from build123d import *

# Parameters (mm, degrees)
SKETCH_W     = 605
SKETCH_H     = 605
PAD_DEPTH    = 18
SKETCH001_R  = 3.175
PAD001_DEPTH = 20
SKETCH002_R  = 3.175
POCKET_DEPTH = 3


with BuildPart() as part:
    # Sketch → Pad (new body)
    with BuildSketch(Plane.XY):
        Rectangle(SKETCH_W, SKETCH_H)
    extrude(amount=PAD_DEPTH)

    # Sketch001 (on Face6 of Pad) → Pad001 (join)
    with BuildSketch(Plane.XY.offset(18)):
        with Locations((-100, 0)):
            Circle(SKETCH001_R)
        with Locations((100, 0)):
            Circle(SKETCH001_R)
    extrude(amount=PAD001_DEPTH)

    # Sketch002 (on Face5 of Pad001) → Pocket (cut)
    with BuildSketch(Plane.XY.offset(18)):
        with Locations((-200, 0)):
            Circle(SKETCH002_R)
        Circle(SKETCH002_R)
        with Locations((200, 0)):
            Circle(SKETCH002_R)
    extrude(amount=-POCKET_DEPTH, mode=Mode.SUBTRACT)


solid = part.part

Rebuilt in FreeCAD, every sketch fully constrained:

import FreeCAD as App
import Part
import Sketcher
Q = App.Units.Quantity

doc = App.newDocument("Part")
body = doc.addObject("PartDesign::Body", "Body")

sketch1 = body.newObject("Sketcher::SketchObject", "Sketch")
sketch1.AttachmentSupport = (doc.getObject("XY_Plane"), [""])
sketch1.MapMode = "FlatFace"
sketch1.addGeometry([
    Part.LineSegment(App.Vector(-302, 302, 0), App.Vector(-302, -302, 0)),
    Part.LineSegment(App.Vector(-302, -302, 0), App.Vector(302, -302, 0)),
    Part.LineSegment(App.Vector(302, -302, 0), App.Vector(302, 302, 0)),
    Part.LineSegment(App.Vector(302, 302, 0), App.Vector(-302, 302, 0)),
], False)
sketch1.addConstraint([
    Sketcher.Constraint("Coincident", 0, 2, 1, 1),
    Sketcher.Constraint("Coincident", 1, 2, 2, 1),
    Sketcher.Constraint("Coincident", 2, 2, 3, 1),
    Sketcher.Constraint("Coincident", 3, 2, 0, 1),
    Sketcher.Constraint("Vertical", 0),
    Sketcher.Constraint("Horizontal", 1),
    Sketcher.Constraint("Vertical", 2),
    Sketcher.Constraint("Horizontal", 3),
    Sketcher.Constraint("Symmetric", 0, 2, 2, 2, -1, 1),
    Sketcher.Constraint("Equal", 3, 0),
    Sketcher.Constraint("DistanceX", 1, 1, 1, 2, Q("605 mm")),
])
pad1 = body.newObject("PartDesign::Pad", "Pad")
pad1.Profile = sketch1
pad1.Length = 18

sketch2 = body.newObject("Sketcher::SketchObject", "Sketch001")
sketch2.AttachmentSupport = (doc.getObject("XY_Plane"), [""])
sketch2.MapMode = "FlatFace"
sketch2.AttachmentOffset = App.Placement(App.Vector(0, 0, 18), App.Rotation())
sketch2.addGeometry([
    Part.Circle(App.Vector(-100, 0, 0), App.Vector(0, 0, 1), 3.2),
    Part.Circle(App.Vector(100, 0, 0), App.Vector(0, 0, 1), 3.2),
], False)
sketch2.addConstraint([
    Sketcher.Constraint("Equal", 0, 1),
    Sketcher.Constraint("Symmetric", 0, 3, 1, 3, -1, 1),
    Sketcher.Constraint("PointOnObject", 0, 3, -1),
    Sketcher.Constraint("Diameter", 0, Q("6.35 mm")),
    Sketcher.Constraint("DistanceX", 0, 3, -1, 1, Q("100 mm")),
])
pad2 = body.newObject("PartDesign::Pad", "Pad001")
pad2.Profile = sketch2
pad2.Length = 20

sketch3 = body.newObject("Sketcher::SketchObject", "Sketch002")
sketch3.AttachmentSupport = (doc.getObject("XY_Plane"), [""])
sketch3.MapMode = "FlatFace"
sketch3.AttachmentOffset = App.Placement(App.Vector(0, 0, 18), App.Rotation())
sketch3.addGeometry([
    Part.Circle(App.Vector(-200, 0, 0), App.Vector(0, 0, 1), 3.2),
    Part.Circle(App.Vector(0, 0, 0), App.Vector(0, 0, 1), 3.2),
    Part.Circle(App.Vector(200, 0, 0), App.Vector(0, 0, 1), 3.2),
], False)
sketch3.addConstraint([
    Sketcher.Constraint("Coincident", 1, 3, -1, 1),
    Sketcher.Constraint("Equal", 0, 1),
    Sketcher.Constraint("Equal", 1, 2),
    Sketcher.Constraint("Symmetric", 0, 3, 2, 3, -1, 1),
    Sketcher.Constraint("PointOnObject", 0, 3, -1),
    Sketcher.Constraint("Diameter", 0, Q("6.35 mm")),
    Sketcher.Constraint("DistanceX", 0, 3, -1, 1, Q("200 mm")),
])
pocket1 = body.newObject("PartDesign::Pocket", "Pocket")
pocket1.Profile = sketch3
pocket1.Length = 3

doc.recompute()
